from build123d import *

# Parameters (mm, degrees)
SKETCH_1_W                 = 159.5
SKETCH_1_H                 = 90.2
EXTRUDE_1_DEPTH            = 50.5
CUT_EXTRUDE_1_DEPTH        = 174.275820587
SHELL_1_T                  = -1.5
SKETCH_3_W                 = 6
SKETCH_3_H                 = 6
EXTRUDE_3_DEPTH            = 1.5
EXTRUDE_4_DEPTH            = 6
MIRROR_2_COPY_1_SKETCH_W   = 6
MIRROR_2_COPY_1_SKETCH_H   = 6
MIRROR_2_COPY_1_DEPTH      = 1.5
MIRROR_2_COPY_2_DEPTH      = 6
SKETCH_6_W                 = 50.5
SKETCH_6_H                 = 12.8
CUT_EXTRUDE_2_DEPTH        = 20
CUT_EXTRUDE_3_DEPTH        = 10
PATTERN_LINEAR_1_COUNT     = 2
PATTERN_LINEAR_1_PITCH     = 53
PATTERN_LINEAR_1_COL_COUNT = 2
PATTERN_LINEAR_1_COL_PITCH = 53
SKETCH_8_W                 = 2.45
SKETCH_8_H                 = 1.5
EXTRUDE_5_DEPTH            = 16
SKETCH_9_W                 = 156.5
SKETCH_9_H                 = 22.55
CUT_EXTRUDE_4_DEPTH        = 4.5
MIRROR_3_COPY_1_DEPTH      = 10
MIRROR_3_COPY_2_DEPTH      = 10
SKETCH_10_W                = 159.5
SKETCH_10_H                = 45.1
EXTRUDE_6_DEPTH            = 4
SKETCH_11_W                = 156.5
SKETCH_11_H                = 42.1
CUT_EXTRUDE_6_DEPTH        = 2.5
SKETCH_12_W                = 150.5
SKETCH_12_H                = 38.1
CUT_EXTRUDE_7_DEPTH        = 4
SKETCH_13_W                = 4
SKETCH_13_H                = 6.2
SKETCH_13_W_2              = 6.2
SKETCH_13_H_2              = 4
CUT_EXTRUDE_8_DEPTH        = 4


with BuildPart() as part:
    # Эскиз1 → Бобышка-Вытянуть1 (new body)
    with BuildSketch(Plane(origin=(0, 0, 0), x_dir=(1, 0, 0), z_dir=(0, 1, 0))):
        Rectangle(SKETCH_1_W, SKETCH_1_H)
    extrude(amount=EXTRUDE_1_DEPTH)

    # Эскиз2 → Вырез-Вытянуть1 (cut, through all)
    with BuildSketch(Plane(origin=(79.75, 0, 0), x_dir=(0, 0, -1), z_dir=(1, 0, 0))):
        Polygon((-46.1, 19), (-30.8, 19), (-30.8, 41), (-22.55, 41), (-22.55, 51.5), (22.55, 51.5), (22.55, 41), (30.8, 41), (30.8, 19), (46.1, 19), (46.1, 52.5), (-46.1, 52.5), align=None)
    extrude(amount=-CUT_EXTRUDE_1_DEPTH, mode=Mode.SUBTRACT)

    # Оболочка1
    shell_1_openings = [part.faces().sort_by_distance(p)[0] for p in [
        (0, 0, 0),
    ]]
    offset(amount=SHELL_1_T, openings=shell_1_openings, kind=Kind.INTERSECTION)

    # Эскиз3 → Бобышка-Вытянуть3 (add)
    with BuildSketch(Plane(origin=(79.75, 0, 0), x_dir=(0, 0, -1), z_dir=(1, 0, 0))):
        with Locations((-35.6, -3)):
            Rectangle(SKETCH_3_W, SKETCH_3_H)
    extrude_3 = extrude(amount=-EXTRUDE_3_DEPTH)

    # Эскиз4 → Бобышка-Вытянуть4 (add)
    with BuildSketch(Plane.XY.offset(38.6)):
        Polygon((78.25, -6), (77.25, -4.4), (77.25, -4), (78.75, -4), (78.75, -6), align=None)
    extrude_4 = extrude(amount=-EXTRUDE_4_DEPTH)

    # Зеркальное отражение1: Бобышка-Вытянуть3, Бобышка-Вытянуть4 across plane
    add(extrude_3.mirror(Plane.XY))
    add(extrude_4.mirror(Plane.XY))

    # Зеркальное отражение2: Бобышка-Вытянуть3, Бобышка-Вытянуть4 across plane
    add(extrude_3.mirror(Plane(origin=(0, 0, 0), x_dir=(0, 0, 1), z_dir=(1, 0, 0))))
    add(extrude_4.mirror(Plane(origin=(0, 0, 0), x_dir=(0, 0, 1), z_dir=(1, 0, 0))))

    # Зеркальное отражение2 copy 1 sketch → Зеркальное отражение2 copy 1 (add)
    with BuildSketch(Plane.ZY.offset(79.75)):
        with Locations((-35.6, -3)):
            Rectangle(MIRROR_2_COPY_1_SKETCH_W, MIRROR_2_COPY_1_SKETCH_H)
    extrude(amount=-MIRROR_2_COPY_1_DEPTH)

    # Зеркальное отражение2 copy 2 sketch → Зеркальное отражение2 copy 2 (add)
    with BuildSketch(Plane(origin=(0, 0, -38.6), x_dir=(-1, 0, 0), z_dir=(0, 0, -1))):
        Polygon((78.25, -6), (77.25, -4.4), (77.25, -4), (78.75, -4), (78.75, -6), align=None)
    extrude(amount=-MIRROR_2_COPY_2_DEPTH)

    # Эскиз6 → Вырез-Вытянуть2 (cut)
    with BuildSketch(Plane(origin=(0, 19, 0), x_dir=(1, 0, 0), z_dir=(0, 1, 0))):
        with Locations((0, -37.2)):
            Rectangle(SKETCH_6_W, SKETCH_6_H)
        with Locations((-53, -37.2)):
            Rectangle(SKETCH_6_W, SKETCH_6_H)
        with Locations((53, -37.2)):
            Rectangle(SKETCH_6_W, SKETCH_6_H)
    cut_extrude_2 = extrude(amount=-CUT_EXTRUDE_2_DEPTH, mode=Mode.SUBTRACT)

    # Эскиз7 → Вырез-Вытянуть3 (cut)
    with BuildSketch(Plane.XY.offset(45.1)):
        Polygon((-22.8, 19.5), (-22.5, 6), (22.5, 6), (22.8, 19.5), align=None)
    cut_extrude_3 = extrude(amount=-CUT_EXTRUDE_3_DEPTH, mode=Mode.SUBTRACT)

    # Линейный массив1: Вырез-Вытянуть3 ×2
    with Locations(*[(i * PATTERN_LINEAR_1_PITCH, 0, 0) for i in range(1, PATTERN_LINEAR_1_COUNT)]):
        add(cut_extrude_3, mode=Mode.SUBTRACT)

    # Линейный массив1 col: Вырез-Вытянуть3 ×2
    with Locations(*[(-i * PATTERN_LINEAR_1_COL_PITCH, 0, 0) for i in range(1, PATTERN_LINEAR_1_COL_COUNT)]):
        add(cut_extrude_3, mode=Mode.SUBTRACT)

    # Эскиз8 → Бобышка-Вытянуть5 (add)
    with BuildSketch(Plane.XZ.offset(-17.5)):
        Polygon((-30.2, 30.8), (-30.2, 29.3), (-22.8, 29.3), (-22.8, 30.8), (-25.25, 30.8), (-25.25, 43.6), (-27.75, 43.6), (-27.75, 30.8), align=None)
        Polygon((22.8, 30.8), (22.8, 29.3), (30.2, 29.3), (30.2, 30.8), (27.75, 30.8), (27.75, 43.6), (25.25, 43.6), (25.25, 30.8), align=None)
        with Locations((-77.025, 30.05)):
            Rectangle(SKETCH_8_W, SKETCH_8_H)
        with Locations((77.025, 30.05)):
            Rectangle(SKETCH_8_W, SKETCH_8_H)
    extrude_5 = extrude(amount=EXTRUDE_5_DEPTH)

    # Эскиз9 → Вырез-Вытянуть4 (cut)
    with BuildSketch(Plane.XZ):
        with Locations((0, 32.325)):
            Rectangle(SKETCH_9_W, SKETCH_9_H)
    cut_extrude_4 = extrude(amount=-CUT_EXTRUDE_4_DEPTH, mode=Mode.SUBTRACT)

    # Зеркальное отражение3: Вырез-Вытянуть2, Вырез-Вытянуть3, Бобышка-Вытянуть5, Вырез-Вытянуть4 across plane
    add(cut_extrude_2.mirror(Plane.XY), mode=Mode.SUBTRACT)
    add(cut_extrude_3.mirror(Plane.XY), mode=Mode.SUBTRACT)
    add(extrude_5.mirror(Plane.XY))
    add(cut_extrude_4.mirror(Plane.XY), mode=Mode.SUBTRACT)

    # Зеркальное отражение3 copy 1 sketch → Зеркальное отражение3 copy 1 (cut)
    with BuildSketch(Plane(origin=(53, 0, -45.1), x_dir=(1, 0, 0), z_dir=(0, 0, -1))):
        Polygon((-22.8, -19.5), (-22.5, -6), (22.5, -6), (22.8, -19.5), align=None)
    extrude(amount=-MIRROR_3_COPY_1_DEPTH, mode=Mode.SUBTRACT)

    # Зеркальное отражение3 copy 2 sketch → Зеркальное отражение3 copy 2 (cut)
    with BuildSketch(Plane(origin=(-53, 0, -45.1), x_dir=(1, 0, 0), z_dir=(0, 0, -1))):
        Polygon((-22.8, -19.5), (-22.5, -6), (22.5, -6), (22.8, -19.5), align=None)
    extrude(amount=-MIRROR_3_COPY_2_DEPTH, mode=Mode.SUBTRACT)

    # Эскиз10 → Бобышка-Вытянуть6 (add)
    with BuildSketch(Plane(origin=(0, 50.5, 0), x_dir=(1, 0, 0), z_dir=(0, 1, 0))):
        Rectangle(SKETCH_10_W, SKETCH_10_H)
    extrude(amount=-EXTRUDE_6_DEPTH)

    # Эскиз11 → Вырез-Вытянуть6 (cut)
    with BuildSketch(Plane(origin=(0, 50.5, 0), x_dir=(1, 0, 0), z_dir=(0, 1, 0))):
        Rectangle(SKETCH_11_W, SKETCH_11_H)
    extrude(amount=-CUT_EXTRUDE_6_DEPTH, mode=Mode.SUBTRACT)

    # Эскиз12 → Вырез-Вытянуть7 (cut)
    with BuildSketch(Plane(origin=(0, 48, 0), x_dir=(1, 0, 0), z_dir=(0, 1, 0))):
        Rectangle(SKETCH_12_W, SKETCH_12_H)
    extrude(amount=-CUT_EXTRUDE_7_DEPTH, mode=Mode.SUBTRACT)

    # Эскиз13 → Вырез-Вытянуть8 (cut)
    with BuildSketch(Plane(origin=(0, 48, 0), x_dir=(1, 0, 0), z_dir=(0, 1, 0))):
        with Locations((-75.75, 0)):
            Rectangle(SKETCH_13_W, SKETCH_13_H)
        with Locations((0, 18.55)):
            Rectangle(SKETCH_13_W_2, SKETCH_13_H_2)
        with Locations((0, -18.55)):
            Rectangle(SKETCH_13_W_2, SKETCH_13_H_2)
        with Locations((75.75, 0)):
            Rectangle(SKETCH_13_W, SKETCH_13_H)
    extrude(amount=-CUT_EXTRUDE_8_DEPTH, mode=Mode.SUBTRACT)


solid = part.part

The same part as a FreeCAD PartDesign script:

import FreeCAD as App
import Part
import Sketcher


def faces_at(feature, points):
    """Names of the faces that lie closest to the given points."""
    faces = feature.Shape.Faces
    near = lambda p: min(range(len(faces)), key=lambda i: faces[i].distToShape(Part.Vertex(*p))[0])
    return sorted({f"Face{near(p) + 1}" for p in points})

doc = App.newDocument("Part")
params = doc.addObject("Spreadsheet::Sheet", "Params")
for row, (alias, value) in enumerate([
    ("sketch1_width", "159.5 mm"),
    ("sketch1_height", "90.2 mm"),
    ("pad1_length", "50.5 mm"),
    ("sketch2_width", "22 mm"),
    ("sketch2_width2", "10.5 mm"),
    ("sketch2_width3", "33.5 mm"),
    ("sketch2_height", "15.3 mm"),
    ("sketch2_height2", "45.1 mm"),
    ("thickness_wall", "1.5 mm"),
    ("sketch3_width", "6 mm"),
    ("pad2_length", "1.5 mm"),
    ("sketch4_height", "2 mm"),
    ("sketch4_width", "0.5 mm"),
    ("sketch4_width2", "1.5 mm"),
    ("sketch4_height2", "0.4 mm"),
    ("pad3_length", "6 mm"),
    ("sketch5_width", "6 mm"),
    ("pad4_length", "1.5 mm"),
    ("sketch6_height", "2 mm"),
    ("sketch6_width", "0.5 mm"),
    ("sketch6_width2", "1.5 mm"),
    ("sketch6_height2", "0.4 mm"),
    ("pad5_length", "6 mm"),
    ("sketch7_width", "50.5 mm"),
    ("sketch7_height", "12.8 mm"),
    ("pocket2_length", "20 mm"),
    ("sketch8_width", "45 mm"),
    ("sketch8_width2", "45.6 mm"),
    ("pocket3_length", "10 mm"),
    ("linearpattern_pitch", "53 mm"),
    ("linearpattern2_pitch", "53 mm"),
    ("sketch9_width", "7.4 mm"),
    ("sketch9_width2", "2.5 mm"),
    ("sketch9_height", "1.5 mm"),
    ("sketch9_height2", "12.8 mm"),
    ("pad6_length", "16 mm"),
    ("sketch10_width", "156.5 mm"),
    ("sketch10_height", "22.55 mm"),
    ("pocket4_length", "4.5 mm"),
    ("sketch11_width", "45 mm"),
    ("sketch11_width2", "45.6 mm"),
    ("pocket5_length", "10 mm"),
    ("sketch12_width", "45 mm"),
    ("sketch12_width2", "45.6 mm"),
    ("pocket6_length", "10 mm"),
    ("sketch13_width", "159.5 mm"),
    ("sketch13_height", "45.1 mm"),
    ("pad7_length", "4 mm"),
    ("sketch14_width", "156.5 mm"),
    ("sketch14_height", "42.1 mm"),
    ("pocket7_length", "2.5 mm"),
    ("sketch15_width", "150.5 mm"),
    ("sketch15_height", "38.1 mm"),
    ("pocket8_length", "4 mm"),
    ("sketch16_width", "4 mm"),
    ("sketch16_width2", "6.2 mm"),
    ("pocket9_length", "4 mm"),
], start=1):
    params.set(f"A{row}", alias)
    params.set(f"B{row}", "=" + value)
    params.setAlias(f"B{row}", alias)

body = doc.addObject("PartDesign::Body", "Body")

# Sketch on XZ plane
sketch1 = body.newObject("Sketcher::SketchObject", "Sketch")
sketch1.AttachmentSupport = (doc.getObject("XZ_Plane"), [""])
sketch1.MapMode = "FlatFace"
sketch1.addGeometry([
    Part.LineSegment(App.Vector(-80, -45, 0), App.Vector(-80, 45, 0)),
    Part.LineSegment(App.Vector(-80, 45, 0), App.Vector(80, 45, 0)),
    Part.LineSegment(App.Vector(80, 45, 0), App.Vector(80, -45, 0)),
    Part.LineSegment(App.Vector(80, -45, 0), App.Vector(-80, -45, 0)),
], False)
sketch1.addConstraint([
    Sketcher.Constraint("Coincident", 0, 2, 1, 1),
    Sketcher.Constraint("Coincident", 1, 2, 2, 1),
    Sketcher.Constraint("Coincident", 2, 2, 3, 1),
    Sketcher.Constraint("Coincident", 3, 2, 0, 1),
    Sketcher.Constraint("Vertical", 0),
    Sketcher.Constraint("Horizontal", 1),
    Sketcher.Constraint("Vertical", 2),
    Sketcher.Constraint("Horizontal", 3),
    Sketcher.Constraint("Symmetric", 0, 2, 2, 2, -1, 1),
    Sketcher.Constraint("DistanceX", 1, 1, 1, 2, 159.5),
    Sketcher.Constraint("DistanceY", 0, 1, 0, 2, 90.2),
])
sketch1.setExpression("Constraints[9]", "Params.sketch1_width")
sketch1.setExpression("Constraints[10]", "Params.sketch1_height")
pad1 = body.newObject("PartDesign::Pad", "Pad")
pad1.Profile = sketch1
pad1.setExpression("Length", "Params.pad1_length")
pad1.Reversed = True

# Sketch on YZ plane
sketch2 = body.newObject("Sketcher::SketchObject", "Sketch001")
sketch2.AttachmentSupport = (doc.getObject("YZ_Plane"), [""])
sketch2.MapMode = "FlatFace"
sketch2.AttachmentOffset = App.Placement(App.Vector(0, 0, 79.75), App.Rotation())
sketch2.addGeometry([
    Part.LineSegment(App.Vector(19, 46, 0), App.Vector(19, 31, 0)),  # 0
    Part.LineSegment(App.Vector(19, 31, 0), App.Vector(41, 31, 0)),  # 1
    Part.LineSegment(App.Vector(41, 31, 0), App.Vector(41, 23, 0)),  # 2
    Part.LineSegment(App.Vector(41, 23, 0), App.Vector(52, 23, 0)),  # 3
    Part.LineSegment(App.Vector(52, 23, 0), App.Vector(52, -23, 0)),  # 4
    Part.LineSegment(App.Vector(52, -23, 0), App.Vector(41, -23, 0)),  # 5
    Part.LineSegment(App.Vector(41, -23, 0), App.Vector(41, -31, 0)),  # 6
    Part.LineSegment(App.Vector(41, -31, 0), App.Vector(19, -31, 0)),  # 7
    Part.LineSegment(App.Vector(19, -31, 0), App.Vector(19, -46, 0)),  # 8
    Part.LineSegment(App.Vector(19, -46, 0), App.Vector(52, -46, 0)),  # 9
    Part.LineSegment(App.Vector(52, -46, 0), App.Vector(52, 46, 0)),  # 10
    Part.LineSegment(App.Vector(52, 46, 0), App.Vector(19, 46, 0)),  # 11
], False)
sketch2.addConstraint([
    Sketcher.Constraint("Coincident", 0, 2, 1, 1),
    Sketcher.Constraint("Coincident", 1, 2, 2, 1),
    Sketcher.Constraint("Coincident", 2, 2, 3, 1),
    Sketcher.Constraint("Coincident", 3, 2, 4, 1),
    Sketcher.Constraint("Coincident", 4, 2, 5, 1),
    Sketcher.Constraint("Coincident", 5, 2, 6, 1),
    Sketcher.Constraint("Coincident", 6, 2, 7, 1),
    Sketcher.Constraint("Coincident", 7, 2, 8, 1),
    Sketcher.Constraint("Coincident", 8, 2, 9, 1),
    Sketcher.Constraint("Coincident", 9, 2, 10, 1),
    Sketcher.Constraint("Coincident", 10, 2, 11, 1),
    Sketcher.Constraint("Coincident", 11, 2, 0, 1),
    Sketcher.Constraint("Vertical", 0),
    Sketcher.Constraint("Horizontal", 1),
    Sketcher.Constraint("Vertical", 2),
    Sketcher.Constraint("Horizontal", 3),
    Sketcher.Constraint("Vertical", 4),
    Sketcher.Constraint("Horizontal", 5),
    Sketcher.Constraint("Vertical", 6),
    Sketcher.Constraint("Horizontal", 7),
    Sketcher.Constraint("Vertical", 8),
    Sketcher.Constraint("Horizontal", 9),
    Sketcher.Constraint("Vertical", 10),
    Sketcher.Constraint("Horizontal", 11),
    Sketcher.Constraint("Symmetric", 2, 2, 5, 2, -1),
    Sketcher.Constraint("Symmetric", 0, 2, 7, 2, -1),
    Sketcher.Constraint("Equal", 0, 8),
    Sketcher.Constraint("DistanceX", 1, 1, 1, 2, 22.0),
    Sketcher.Constraint("DistanceX", 3, 1, 3, 2, 10.5),
    Sketcher.Constraint("DistanceX", 9, 1, 9, 2, 33.5),
    Sketcher.Constraint("DistanceY", 0, 2, 0, 1, 15.3),
    Sketcher.Constraint("DistanceY", 4, 2, 4, 1, 45.1),
    Sketcher.Constraint("DistanceY", 10, 1, 10, 2, 92.2),
    Sketcher.Constraint("DistanceX", -1, 1, 0, 2, 19.0),
])
sketch2.setExpression("Constraints[27]", "Params.sketch2_width")
sketch2.setExpression("Constraints[28]", "Params.sketch2_width2")
sketch2.setExpression("Constraints[29]", "Params.sketch2_width3")
sketch2.setExpression("Constraints[30]", "Params.sketch2_height")
sketch2.setExpression("Constraints[31]", "Params.sketch2_height2")
pocket1 = body.newObject("PartDesign::Pocket", "Pocket")
pocket1.Profile = sketch2
pocket1.Type = "ThroughAll"
doc.recompute()

thickness = body.newObject("PartDesign::Thickness", "Thickness")
thickness.Base = (pocket1, faces_at(pocket1, [(0, 0, 0)]))
thickness.setExpression("Value", "Params.thickness_wall")
thickness.Reversed = True
thickness.Join = "Intersection"

# Sketch on YZ plane
sketch3 = body.newObject("Sketcher::SketchObject", "Sketch002")
sketch3.AttachmentSupport = (doc.getObject("YZ_Plane"), [""])
sketch3.MapMode = "FlatFace"
sketch3.AttachmentOffset = App.Placement(App.Vector(0, 0, 79.75), App.Rotation())
sketch3.addGeometry([
    Part.LineSegment(App.Vector(0, 39, 0), App.Vector(-6, 39, 0)),
    Part.LineSegment(App.Vector(-6, 39, 0), App.Vector(-6, 33, 0)),
    Part.LineSegment(App.Vector(-6, 33, 0), App.Vector(0, 33, 0)),
    Part.LineSegment(App.Vector(0, 33, 0), App.Vector(0, 39, 0)),
], False)
sketch3.addConstraint([
    Sketcher.Constraint("Coincident", 0, 2, 1, 1),
    Sketcher.Constraint("Coincident", 1, 2, 2, 1),
    Sketcher.Constraint("Coincident", 2, 2, 3, 1),
    Sketcher.Constraint("Coincident", 3, 2, 0, 1),
    Sketcher.Constraint("Horizontal", 0),
    Sketcher.Constraint("Vertical", 1),
    Sketcher.Constraint("Horizontal", 2),
    Sketcher.Constraint("Vertical", 3),
    Sketcher.Constraint("PointOnObject", 2, 2, -2),
    Sketcher.Constraint("Equal", 2, 1),
    Sketcher.Constraint("DistanceX", 0, 2, 0, 1, 6.0),
    Sketcher.Constraint("DistanceY", -1, 1, 0, 2, 38.6),
])
sketch3.setExpression("Constraints[10]", "Params.sketch3_width")
pad2 = body.newObject("PartDesign::Pad", "Pad001")
pad2.Profile = sketch3
pad2.setExpression("Length", "Params.pad2_length")
pad2.Reversed = True

# Sketch on XY plane
sketch4 = body.newObject("Sketcher::SketchObject", "Sketch003")
sketch4.AttachmentSupport = (doc.getObject("XY_Plane"), [""])
sketch4.MapMode = "FlatFace"
sketch4.AttachmentOffset = App.Placement(App.Vector(0, 0, 38.6), App.Rotation())
sketch4.addGeometry([
    Part.LineSegment(App.Vector(77.25, -4.4, 0), App.Vector(78.25, -6, 0)),  # 0
    Part.LineSegment(App.Vector(78.25, -6, 0), App.Vector(78.75, -6, 0)),  # 1
    Part.LineSegment(App.Vector(78.75, -6, 0), App.Vector(78.75, -4, 0)),  # 2
    Part.LineSegment(App.Vector(78.75, -4, 0), App.Vector(77.25, -4, 0)),  # 3
    Part.LineSegment(App.Vector(77.25, -4, 0), App.Vector(77.25, -4.4, 0)),  # 4
], False)
sketch4.addConstraint([
    Sketcher.Constraint("Coincident", 0, 2, 1, 1),
    Sketcher.Constraint("Coincident", 1, 2, 2, 1),
    Sketcher.Constraint("Coincident", 2, 2, 3, 1),
    Sketcher.Constraint("Coincident", 3, 2, 4, 1),
    Sketcher.Constraint("Coincident", 4, 2, 0, 1),
    Sketcher.Constraint("Horizontal", 1),
    Sketcher.Constraint("Vertical", 2),
    Sketcher.Constraint("Horizontal", 3),
    Sketcher.Constraint("Vertical", 4),
    Sketcher.Constraint("DistanceY", 2, 1, 2, 2, 2.0),
    Sketcher.Constraint("DistanceX", 1, 1, 1, 2, 0.5),
    Sketcher.Constraint("DistanceX", 3, 2, 3, 1, 1.5),
    Sketcher.Constraint("DistanceY", 4, 2, 4, 1, 0.4),
    Sketcher.Constraint("DistanceY", 0, 2, -1, 1, 6.0),
    Sketcher.Constraint("DistanceX", -1, 1, 0, 2, 78.25),
])
sketch4.setExpression("Constraints[9]", "Params.sketch4_height")
sketch4.setExpression("Constraints[10]", "Params.sketch4_width")
sketch4.setExpression("Constraints[11]", "Params.sketch4_width2")
sketch4.setExpression("Constraints[12]", "Params.sketch4_height2")
pad3 = body.newObject("PartDesign::Pad", "Pad002")
pad3.Profile = sketch4
pad3.setExpression("Length", "Params.pad3_length")
pad3.Reversed = True
doc.recompute()

mirrored = body.newObject("PartDesign::Mirrored", "Mirrored")
mirrored.Originals = [pad2, pad3]
mirrored.MirrorPlane = (doc.getObject("XY_Plane"), [""])
body.Tip = mirrored
doc.recompute()

mirrored2 = body.newObject("PartDesign::Mirrored", "Mirrored001")
mirrored2.Originals = [pad2, pad3]
mirrored2.MirrorPlane = (doc.getObject("YZ_Plane"), [""])
body.Tip = mirrored2

# Sketch on YZ plane
sketch5 = body.newObject("Sketcher::SketchObject", "Sketch004")
sketch5.AttachmentSupport = (doc.getObject("YZ_Plane"), [""])
sketch5.MapMode = "FlatFace"
sketch5.AttachmentOffset = App.Placement(App.Vector(0, 0, -79.75), App.Rotation())
sketch5.addGeometry([
    Part.LineSegment(App.Vector(0, -39, 0), App.Vector(-6, -39, 0)),
    Part.LineSegment(App.Vector(-6, -39, 0), App.Vector(-6, -33, 0)),
    Part.LineSegment(App.Vector(-6, -33, 0), App.Vector(0, -33, 0)),
    Part.LineSegment(App.Vector(0, -33, 0), App.Vector(0, -39, 0)),
], False)
sketch5.addConstraint([
    Sketcher.Constraint("Coincident", 0, 2, 1, 1),
    Sketcher.Constraint("Coincident", 1, 2, 2, 1),
    Sketcher.Constraint("Coincident", 2, 2, 3, 1),
    Sketcher.Constraint("Coincident", 3, 2, 0, 1),
    Sketcher.Constraint("Horizontal", 0),
    Sketcher.Constraint("Vertical", 1),
    Sketcher.Constraint("Horizontal", 2),
    Sketcher.Constraint("Vertical", 3),
    Sketcher.Constraint("PointOnObject", 2, 2, -2),
    Sketcher.Constraint("Equal", 2, 1),
    Sketcher.Constraint("DistanceX", 0, 2, 0, 1, 6.0),
    Sketcher.Constraint("DistanceY", 0, 2, -1, 1, 38.6),
])
sketch5.setExpression("Constraints[10]", "Params.sketch5_width")
pad4 = body.newObject("PartDesign::Pad", "Pad003")
pad4.Profile = sketch5
pad4.setExpression("Length", "Params.pad4_length")

# Sketch on XY plane
sketch6 = body.newObject("Sketcher::SketchObject", "Sketch005")
sketch6.AttachmentSupport = (doc.getObject("XY_Plane"), [""])
sketch6.MapMode = "FlatFace"
sketch6.AttachmentOffset = App.Placement(App.Vector(0, 0, -38.6), App.Rotation())
sketch6.addGeometry([
    Part.LineSegment(App.Vector(-77.25, -4.4, 0), App.Vector(-78.25, -6, 0)),  # 0
    Part.LineSegment(App.Vector(-78.25, -6, 0), App.Vector(-78.75, -6, 0)),  # 1
    Part.LineSegment(App.Vector(-78.75, -6, 0), App.Vector(-78.75, -4, 0)),  # 2
    Part.LineSegment(App.Vector(-78.75, -4, 0), App.Vector(-77.25, -4, 0)),  # 3
    Part.LineSegment(App.Vector(-77.25, -4, 0), App.Vector(-77.25, -4.4, 0)),  # 4
], False)
sketch6.addConstraint([
    Sketcher.Constraint("Coincident", 0, 2, 1, 1),
    Sketcher.Constraint("Coincident", 1, 2, 2, 1),
    Sketcher.Constraint("Coincident", 2, 2, 3, 1),
    Sketcher.Constraint("Coincident", 3, 2, 4, 1),
    Sketcher.Constraint("Coincident", 4, 2, 0, 1),
    Sketcher.Constraint("Horizontal", 1),
    Sketcher.Constraint("Vertical", 2),
    Sketcher.Constraint("Horizontal", 3),
    Sketcher.Constraint("Vertical", 4),
    Sketcher.Constraint("DistanceY", 2, 1, 2, 2, 2.0),
    Sketcher.Constraint("DistanceX", 1, 2, 1, 1, 0.5),
    Sketcher.Constraint("DistanceX", 3, 1, 3, 2, 1.5),
    Sketcher.Constraint("DistanceY", 4, 2, 4, 1, 0.4),
    Sketcher.Constraint("DistanceY", 0, 2, -1, 1, 6.0),
    Sketcher.Constraint("DistanceX", 0, 2, -1, 1, 78.25),
])
sketch6.setExpression("Constraints[9]", "Params.sketch6_height")
sketch6.setExpression("Constraints[10]", "Params.sketch6_width")
sketch6.setExpression("Constraints[11]", "Params.sketch6_width2")
sketch6.setExpression("Constraints[12]", "Params.sketch6_height2")
pad5 = body.newObject("PartDesign::Pad", "Pad004")
pad5.Profile = sketch6
pad5.setExpression("Length", "Params.pad5_length")

# Sketch on XZ plane
sketch7 = body.newObject("Sketcher::SketchObject", "Sketch006")
sketch7.AttachmentSupport = (doc.getObject("XZ_Plane"), [""])
sketch7.MapMode = "FlatFace"
sketch7.AttachmentOffset = App.Placement(App.Vector(0, 0, -19), App.Rotation())
sketch7.addGeometry([
    Part.LineSegment(App.Vector(-25, 31, 0), App.Vector(-25, 44, 0)),  # 0
    Part.LineSegment(App.Vector(-25, 44, 0), App.Vector(25, 44, 0)),  # 1
    Part.LineSegment(App.Vector(25, 44, 0), App.Vector(25, 31, 0)),  # 2
    Part.LineSegment(App.Vector(25, 31, 0), App.Vector(-25, 31, 0)),  # 3
    Part.LineSegment(App.Vector(-78, 31, 0), App.Vector(-78, 44, 0)),  # 4
    Part.LineSegment(App.Vector(-78, 44, 0), App.Vector(-28, 44, 0)),  # 5
    Part.LineSegment(App.Vector(-28, 44, 0), App.Vector(-28, 31, 0)),  # 6
    Part.LineSegment(App.Vector(-28, 31, 0), App.Vector(-78, 31, 0)),  # 7
    Part.LineSegment(App.Vector(28, 31, 0), App.Vector(28, 44, 0)),  # 8
    Part.LineSegment(App.Vector(28, 44, 0), App.Vector(78, 44, 0)),  # 9
    Part.LineSegment(App.Vector(78, 44, 0), App.Vector(78, 31, 0)),  # 10
    Part.LineSegment(App.Vector(78, 31, 0), App.Vector(28, 31, 0)),  # 11
], False)
sketch7.addConstraint([
    Sketcher.Constraint("Coincident", 0, 2, 1, 1),
    Sketcher.Constraint("Coincident", 1, 2, 2, 1),
    Sketcher.Constraint("Coincident", 2, 2, 3, 1),
    Sketcher.Constraint("Coincident", 3, 2, 0, 1),
    Sketcher.Constraint("Coincident", 4, 2, 5, 1),
    Sketcher.Constraint("Coincident", 5, 2, 6, 1),
    Sketcher.Constraint("Coincident", 6, 2, 7, 1),
    Sketcher.Constraint("Coincident", 7, 2, 4, 1),
    Sketcher.Constraint("Coincident", 8, 2, 9, 1),
    Sketcher.Constraint("Coincident", 9, 2, 10, 1),
    Sketcher.Constraint("Coincident", 10, 2, 11, 1),
    Sketcher.Constraint("Coincident", 11, 2, 8, 1),
    Sketcher.Constraint("Vertical", 0),
    Sketcher.Constraint("Horizontal", 1),
    Sketcher.Constraint("Vertical", 2),
    Sketcher.Constraint("Horizontal", 3),
    Sketcher.Constraint("Vertical", 4),
    Sketcher.Constraint("Horizontal", 5),
    Sketcher.Constraint("Vertical", 6),
    Sketcher.Constraint("Horizontal", 7),
    Sketcher.Constraint("Vertical", 8),
    Sketcher.Constraint("Horizontal", 9),
    Sketcher.Constraint("Vertical", 10),
    Sketcher.Constraint("Horizontal", 11),
    Sketcher.Constraint("Symmetric", 5, 2, 8, 2, -2),
    Sketcher.Constraint("Symmetric", 7, 2, 10, 2, -2),
    Sketcher.Constraint("Horizontal", 1, 2, 4, 2),
    Sketcher.Constraint("Horizontal", 3, 2, 6, 2),
    Sketcher.Constraint("Equal", 3, 5),
    Sketcher.Constraint("DistanceX", 1, 1, 1, 2, 50.5),
    Sketcher.Constraint("DistanceY", 0, 1, 0, 2, 12.8),
    Sketcher.Constraint("DistanceX", 4, 2, 0, 2, 53.0),
    Sketcher.Constraint("DistanceX", 0, 2, 8, 2, 53.0),
    Sketcher.Constraint("DistanceY", -1, 1, 0, 2, 43.6),
])
sketch7.setExpression("Constraints[29]", "Params.sketch7_width")
sketch7.setExpression("Constraints[30]", "Params.sketch7_height")
pocket2 = body.newObject("PartDesign::Pocket", "Pocket001")
pocket2.Profile = sketch7
pocket2.setExpression("Length", "Params.pocket2_length")
pocket2.Reversed = True

# Sketch on XY plane
sketch8 = body.newObject("Sketcher::SketchObject", "Sketch007")
sketch8.AttachmentSupport = (doc.getObject("XY_Plane"), [""])
sketch8.MapMode = "FlatFace"
sketch8.AttachmentOffset = App.Placement(App.Vector(0, 0, 45.1), App.Rotation())
sketch8.addGeometry([
    Part.LineSegment(App.Vector(-23, 20, 0), App.Vector(-22, 6, 0)),
    Part.LineSegment(App.Vector(-22, 6, 0), App.Vector(22, 6, 0)),
    Part.LineSegment(App.Vector(22, 6, 0), App.Vector(23, 20, 0)),
    Part.LineSegment(App.Vector(23, 20, 0), App.Vector(-23, 20, 0)),
], False)
sketch8.addConstraint([
    Sketcher.Constraint("Coincident", 0, 2, 1, 1),
    Sketcher.Constraint("Coincident", 1, 2, 2, 1),
    Sketcher.Constraint("Coincident", 2, 2, 3, 1),
    Sketcher.Constraint("Coincident", 3, 2, 0, 1),
    Sketcher.Constraint("Horizontal", 1),
    Sketcher.Constraint("Horizontal", 3),
    Sketcher.Constraint("Equal", 0, 2),
    Sketcher.Constraint("DistanceX", 1, 1, 1, 2, 45.0),
    Sketcher.Constraint("DistanceX", 3, 2, 3, 1, 45.6),
    Sketcher.Constraint("DistanceY", -1, 1, 0, 2, 6.0),
    Sketcher.Constraint("DistanceX", 0, 2, -1, 1, 22.5),
    Sketcher.Constraint("DistanceY", -1, 1, 2, 2, 19.5),
])
sketch8.setExpression("Constraints[7]", "Params.sketch8_width")
sketch8.setExpression("Constraints[8]", "Params.sketch8_width2")
pocket3 = body.newObject("PartDesign::Pocket", "Pocket002")
pocket3.Profile = sketch8
pocket3.setExpression("Length", "Params.pocket3_length")
doc.recompute()

linearpattern = body.newObject("PartDesign::LinearPattern", "LinearPattern")
linearpattern.Originals = [pocket3]
linearpattern.Direction = (doc.getObject("X_Axis"), [""])
linearpattern.Mode = "offset"
linearpattern.setExpression("Offset", "Params.linearpattern_pitch")
linearpattern.Occurrences = 2
body.Tip = linearpattern
doc.recompute()

linearpattern2 = body.newObject("PartDesign::LinearPattern", "LinearPattern001")
linearpattern2.Originals = [pocket3]
linearpattern2.Direction = (doc.getObject("X_Axis"), [""])
linearpattern2.Mode = "offset"
linearpattern2.setExpression("Offset", "Params.linearpattern2_pitch")
linearpattern2.Occurrences = 2
linearpattern2.Reversed = True
body.Tip = linearpattern2

# Sketch on XZ plane
sketch9 = body.newObject("Sketcher::SketchObject", "Sketch008")
sketch9.AttachmentSupport = (doc.getObject("XZ_Plane"), [""])
sketch9.MapMode = "FlatFace"
sketch9.AttachmentOffset = App.Placement(App.Vector(0, 0, -17.5), App.Rotation())
sketch9.addGeometry([
    Part.LineSegment(App.Vector(-30.2, 30.8, 0), App.Vector(-30.2, 29.3, 0)),  # 0
    Part.LineSegment(App.Vector(-30.2, 29.3, 0), App.Vector(-22.8, 29.3, 0)),  # 1
    Part.LineSegment(App.Vector(-22.8, 29.3, 0), App.Vector(-22.8, 30.8, 0)),  # 2
    Part.LineSegment(App.Vector(-22.8, 30.8, 0), App.Vector(-25.2, 30.8, 0)),  # 3
    Part.LineSegment(App.Vector(-25.2, 30.8, 0), App.Vector(-25.2, 43.6, 0)),  # 4
    Part.LineSegment(App.Vector(-25.2, 43.6, 0), App.Vector(-27.8, 43.6, 0)),  # 5
    Part.LineSegment(App.Vector(-27.8, 43.6, 0), App.Vector(-27.8, 30.8, 0)),  # 6
    Part.LineSegment(App.Vector(-27.8, 30.8, 0), App.Vector(-30.2, 30.8, 0)),  # 7
    Part.LineSegment(App.Vector(22.8, 30.8, 0), App.Vector(22.8, 29.3, 0)),  # 8
    Part.LineSegment(App.Vector(22.8, 29.3, 0), App.Vector(30.2, 29.3, 0)),  # 9
    Part.LineSegment(App.Vector(30.2, 29.3, 0), App.Vector(30.2, 30.8, 0)),  # 10
    Part.LineSegment(App.Vector(30.2, 30.8, 0), App.Vector(27.8, 30.8, 0)),  # 11
    Part.LineSegment(App.Vector(27.8, 30.8, 0), App.Vector(27.8, 43.6, 0)),  # 12
    Part.LineSegment(App.Vector(27.8, 43.6, 0), App.Vector(25.2, 43.6, 0)),  # 13
    Part.LineSegment(App.Vector(25.2, 43.6, 0), App.Vector(25.2, 30.8, 0)),  # 14
    Part.LineSegment(App.Vector(25.2, 30.8, 0), App.Vector(22.8, 30.8, 0)),  # 15
    Part.LineSegment(App.Vector(-78.2, 30.8, 0), App.Vector(-78.2, 29.3, 0)),  # 16
    Part.LineSegment(App.Vector(-78.2, 29.3, 0), App.Vector(-75.8, 29.3, 0)),  # 17
    Part.LineSegment(App.Vector(-75.8, 29.3, 0), App.Vector(-75.8, 30.8, 0)),  # 18
    Part.LineSegment(App.Vector(-75.8, 30.8, 0), App.Vector(-78.2, 30.8, 0)),  # 19
    Part.LineSegment(App.Vector(75.8, 30.8, 0), App.Vector(75.8, 29.3, 0)),  # 20
    Part.LineSegment(App.Vector(75.8, 29.3, 0), App.Vector(78.2, 29.3, 0)),  # 21
    Part.LineSegment(App.Vector(78.2, 29.3, 0), App.Vector(78.2, 30.8, 0)),  # 22
    Part.LineSegment(App.Vector(78.2, 30.8, 0), App.Vector(75.8, 30.8, 0)),  # 23
], False)
sketch9.addConstraint([
    Sketcher.Constraint("Coincident", 0, 2, 1, 1),
    Sketcher.Constraint("Coincident", 1, 2, 2, 1),
    Sketcher.Constraint("Coincident", 2, 2, 3, 1),
    Sketcher.Constraint("Coincident", 3, 2, 4, 1),
    Sketcher.Constraint("Coincident", 4, 2, 5, 1),
    Sketcher.Constraint("Coincident", 5, 2, 6, 1),
    Sketcher.Constraint("Coincident", 6, 2, 7, 1),
    Sketcher.Constraint("Coincident", 7, 2, 0, 1),
    Sketcher.Constraint("Coincident", 8, 2, 9, 1),
    Sketcher.Constraint("Coincident", 9, 2, 10, 1),
    Sketcher.Constraint("Coincident", 10, 2, 11, 1),
    Sketcher.Constraint("Coincident", 11, 2, 12, 1),
    Sketcher.Constraint("Coincident", 12, 2, 13, 1),
    Sketcher.Constraint("Coincident", 13, 2, 14, 1),
    Sketcher.Constraint("Coincident", 14, 2, 15, 1),
    Sketcher.Constraint("Coincident", 15, 2, 8, 1),
    Sketcher.Constraint("Coincident", 16, 2, 17, 1),
    Sketcher.Constraint("Coincident", 17, 2, 18, 1),
    Sketcher.Constraint("Coincident", 18, 2, 19, 1),
    Sketcher.Constraint("Coincident", 19, 2, 16, 1),
    Sketcher.Constraint("Coincident", 20, 2, 21, 1),
    Sketcher.Constraint("Coincident", 21, 2, 22, 1),
    Sketcher.Constraint("Coincident", 22, 2, 23, 1),
    Sketcher.Constraint("Coincident", 23, 2, 20, 1),
    Sketcher.Constraint("Vertical", 0),
    Sketcher.Constraint("Horizontal", 1),
    Sketcher.Constraint("Vertical", 2),
    Sketcher.Constraint("Horizontal", 3),
    Sketcher.Constraint("Vertical", 4),
    Sketcher.Constraint("Horizontal", 5),
    Sketcher.Constraint("Vertical", 6),
    Sketcher.Constraint("Horizontal", 7),
    Sketcher.Constraint("Vertical", 8),
    Sketcher.Constraint("Horizontal", 9),
    Sketcher.Constraint("Vertical", 10),
    Sketcher.Constraint("Horizontal", 11),
    Sketcher.Constraint("Vertical", 12),
    Sketcher.Constraint("Horizontal", 13),
    Sketcher.Constraint("Vertical", 14),
    Sketcher.Constraint("Horizontal", 15),
    Sketcher.Constraint("Vertical", 16),
    Sketcher.Constraint("Horizontal", 17),
    Sketcher.Constraint("Vertical", 18),
    Sketcher.Constraint("Horizontal", 19),
    Sketcher.Constraint("Vertical", 20),
    Sketcher.Constraint("Horizontal", 21),
    Sketcher.Constraint("Vertical", 22),
    Sketcher.Constraint("Horizontal", 23),
    Sketcher.Constraint("Symmetric", 1, 2, 8, 2, -2),
    Sketcher.Constraint("Symmetric", 7, 2, 10, 2, -2),
    Sketcher.Constraint("Symmetric", 5, 2, 12, 2, -2),
    Sketcher.Constraint("Symmetric", 3, 2, 14, 2, -2),
    Sketcher.Constraint("Symmetric", 17, 2, 20, 2, -2),
    Sketcher.Constraint("Symmetric", 19, 2, 22, 2, -2),
    Sketcher.Constraint("Horizontal", 3, 2, 6, 2),
    Sketcher.Constraint("Horizontal", 9, 2, 16, 2),
    Sketcher.Constraint("Horizontal", 15, 2, 18, 2),
    Sketcher.Constraint("Equal", 3, 7),
    Sketcher.Constraint("Equal", 15, 17),
    Sketcher.Constraint("DistanceX", 1, 1, 1, 2, 7.4),
    Sketcher.Constraint("DistanceX", 5, 2, 5, 1, 2.5),
    Sketcher.Constraint("DistanceY", 0, 2, 0, 1, 1.5),
    Sketcher.Constraint("DistanceY", 4, 1, 4, 2, 12.8),
    Sketcher.Constraint("DistanceX", 1, 2, 9, 2, 53.0),
    Sketcher.Constraint("DistanceX", 16, 2, 3, 2, 53.0),
    Sketcher.Constraint("DistanceY", -1, 1, 0, 2, 29.3),
])
sketch9.setExpression("Constraints[59]", "Params.sketch9_width")
sketch9.setExpression("Constraints[60]", "Params.sketch9_width2")
sketch9.setExpression("Constraints[61]", "Params.sketch9_height")
sketch9.setExpression("Constraints[62]", "Params.sketch9_height2")
pad6 = body.newObject("PartDesign::Pad", "Pad005")
pad6.Profile = sketch9
pad6.setExpression("Length", "Params.pad6_length")

# Sketch on XZ plane
sketch10 = body.newObject("Sketcher::SketchObject", "Sketch009")
sketch10.AttachmentSupport = (doc.getObject("XZ_Plane"), [""])
sketch10.MapMode = "FlatFace"
sketch10.addGeometry([
    Part.LineSegment(App.Vector(-78, 44, 0), App.Vector(-78, 21, 0)),
    Part.LineSegment(App.Vector(-78, 21, 0), App.Vector(78, 21, 0)),
    Part.LineSegment(App.Vector(78, 21, 0), App.Vector(78, 44, 0)),
    Part.LineSegment(App.Vector(78, 44, 0), App.Vector(-78, 44, 0)),
], False)
sketch10.addConstraint([
    Sketcher.Constraint("Coincident", 0, 2, 1, 1),
    Sketcher.Constraint("Coincident", 1, 2, 2, 1),
    Sketcher.Constraint("Coincident", 2, 2, 3, 1),
    Sketcher.Constraint("Coincident", 3, 2, 0, 1),
    Sketcher.Constraint("Vertical", 0),
    Sketcher.Constraint("Horizontal", 1),
    Sketcher.Constraint("Vertical", 2),
    Sketcher.Constraint("Horizontal", 3),
    Sketcher.Constraint("DistanceX", 1, 1, 1, 2, 156.5),
    Sketcher.Constraint("DistanceY", 0, 2, 0, 1, 22.55),
    Sketcher.Constraint("DistanceY", -1, 1, 2, 2, 43.6),
    Sketcher.Constraint("DistanceX", 0, 2, -1, 1, 78.25),
])
sketch10.setExpression("Constraints[8]", "Params.sketch10_width")
sketch10.setExpression("Constraints[9]", "Params.sketch10_height")
pocket4 = body.newObject("PartDesign::Pocket", "Pocket003")
pocket4.Profile = sketch10
pocket4.setExpression("Length", "Params.pocket4_length")
doc.recompute()

mirrored3 = body.newObject("PartDesign::Mirrored", "Mirrored002")
mirrored3.Originals = [pocket2, pocket3, pad6, pocket4]
mirrored3.MirrorPlane = (doc.getObject("XY_Plane"), [""])
body.Tip = mirrored3

# Sketch on XY plane
sketch11 = body.newObject("Sketcher::SketchObject", "Sketch010")
sketch11.AttachmentSupport = (doc.getObject("XY_Plane"), [""])
sketch11.MapMode = "FlatFace"
sketch11.AttachmentOffset = App.Placement(App.Vector(0, 0, -45.1), App.Rotation())
sketch11.addGeometry([
    Part.LineSegment(App.Vector(30.5, 6, 0), App.Vector(30.2, 19.5, 0)),
    Part.LineSegment(App.Vector(30.2, 19.5, 0), App.Vector(75.8, 19.5, 0)),
    Part.LineSegment(App.Vector(75.8, 19.5, 0), App.Vector(75.5, 6, 0)),
    Part.LineSegment(App.Vector(75.5, 6, 0), App.Vector(30.5, 6, 0)),
], False)
sketch11.addConstraint([
    Sketcher.Constraint("Coincident", 0, 2, 1, 1),
    Sketcher.Constraint("Coincident", 1, 2, 2, 1),
    Sketcher.Constraint("Coincident", 2, 2, 3, 1),
    Sketcher.Constraint("Coincident", 3, 2, 0, 1),
    Sketcher.Constraint("Horizontal", 1),
    Sketcher.Constraint("Horizontal", 3),
    Sketcher.Constraint("Equal", 0, 2),
    Sketcher.Constraint("DistanceX", 3, 2, 3, 1, 45.0),
    Sketcher.Constraint("DistanceX", 1, 1, 1, 2, 45.6),
    Sketcher.Constraint("DistanceY", -1, 1, 2, 2, 6.0),
    Sketcher.Constraint("DistanceX", -1, 1, 0, 2, 30.2),
    Sketcher.Constraint("DistanceY", -1, 1, 0, 2, 19.5),
])
sketch11.setExpression("Constraints[7]", "Params.sketch11_width")
sketch11.setExpression("Constraints[8]", "Params.sketch11_width2")
pocket5 = body.newObject("PartDesign::Pocket", "Pocket004")
pocket5.Profile = sketch11
pocket5.setExpression("Length", "Params.pocket5_length")
pocket5.Reversed = True

# Sketch on XY plane
sketch12 = body.newObject("Sketcher::SketchObject", "Sketch011")
sketch12.AttachmentSupport = (doc.getObject("XY_Plane"), [""])
sketch12.MapMode = "FlatFace"
sketch12.AttachmentOffset = App.Placement(App.Vector(0, 0, -45.1), App.Rotation())
sketch12.addGeometry([
    Part.LineSegment(App.Vector(-75.5, 6, 0), App.Vector(-75.8, 19.5, 0)),
    Part.LineSegment(App.Vector(-75.8, 19.5, 0), App.Vector(-30.2, 19.5, 0)),
    Part.LineSegment(App.Vector(-30.2, 19.5, 0), App.Vector(-30.5, 6, 0)),
    Part.LineSegment(App.Vector(-30.5, 6, 0), App.Vector(-75.5, 6, 0)),
], False)
sketch12.addConstraint([
    Sketcher.Constraint("Coincident", 0, 2, 1, 1),
    Sketcher.Constraint("Coincident", 1, 2, 2, 1),
    Sketcher.Constraint("Coincident", 2, 2, 3, 1),
    Sketcher.Constraint("Coincident", 3, 2, 0, 1),
    Sketcher.Constraint("Horizontal", 1),
    Sketcher.Constraint("Horizontal", 3),
    Sketcher.Constraint("Equal", 0, 2),
    Sketcher.Constraint("DistanceX", 3, 2, 3, 1, 45.0),
    Sketcher.Constraint("DistanceX", 1, 1, 1, 2, 45.6),
    Sketcher.Constraint("DistanceY", -1, 1, 2, 2, 6.0),
    Sketcher.Constraint("DistanceX", 0, 2, -1, 1, 75.8),
    Sketcher.Constraint("DistanceY", -1, 1, 0, 2, 19.5),
])
sketch12.setExpression("Constraints[7]", "Params.sketch12_width")
sketch12.setExpression("Constraints[8]", "Params.sketch12_width2")
pocket6 = body.newObject("PartDesign::Pocket", "Pocket005")
pocket6.Profile = sketch12
pocket6.setExpression("Length", "Params.pocket6_length")
pocket6.Reversed = True

# Sketch on XZ plane
sketch13 = body.newObject("Sketcher::SketchObject", "Sketch012")
sketch13.AttachmentSupport = (doc.getObject("XZ_Plane"), [""])
sketch13.MapMode = "FlatFace"
sketch13.AttachmentOffset = App.Placement(App.Vector(0, 0, -50.5), App.Rotation())
sketch13.addGeometry([
    Part.LineSegment(App.Vector(-80, -23, 0), App.Vector(-80, 23, 0)),
    Part.LineSegment(App.Vector(-80, 23, 0), App.Vector(80, 23, 0)),
    Part.LineSegment(App.Vector(80, 23, 0), App.Vector(80, -23, 0)),
    Part.LineSegment(App.Vector(80, -23, 0), App.Vector(-80, -23, 0)),
], False)
sketch13.addConstraint([
    Sketcher.Constraint("Coincident", 0, 2, 1, 1),
    Sketcher.Constraint("Coincident", 1, 2, 2, 1),
    Sketcher.Constraint("Coincident", 2, 2, 3, 1),
    Sketcher.Constraint("Coincident", 3, 2, 0, 1),
    Sketcher.Constraint("Vertical", 0),
    Sketcher.Constraint("Horizontal", 1),
    Sketcher.Constraint("Vertical", 2),
    Sketcher.Constraint("Horizontal", 3),
    Sketcher.Constraint("Symmetric", 0, 2, 2, 2, -1, 1),
    Sketcher.Constraint("DistanceX", 1, 1, 1, 2, 159.5),
    Sketcher.Constraint("DistanceY", 0, 1, 0, 2, 45.1),
])
sketch13.setExpression("Constraints[9]", "Params.sketch13_width")
sketch13.setExpression("Constraints[10]", "Params.sketch13_height")
pad7 = body.newObject("PartDesign::Pad", "Pad006")
pad7.Profile = sketch13
pad7.setExpression("Length", "Params.pad7_length")

# Sketch on XZ plane
sketch14 = body.newObject("Sketcher::SketchObject", "Sketch013")
sketch14.AttachmentSupport = (doc.getObject("XZ_Plane"), [""])
sketch14.MapMode = "FlatFace"
sketch14.AttachmentOffset = App.Placement(App.Vector(0, 0, -50.5), App.Rotation())
sketch14.addGeometry([
    Part.LineSegment(App.Vector(-78, -21, 0), App.Vector(-78, 21, 0)),
    Part.LineSegment(App.Vector(-78, 21, 0), App.Vector(78, 21, 0)),
    Part.LineSegment(App.Vector(78, 21, 0), App.Vector(78, -21, 0)),
    Part.LineSegment(App.Vector(78, -21, 0), App.Vector(-78, -21, 0)),
], False)
sketch14.addConstraint([
    Sketcher.Constraint("Coincident", 0, 2, 1, 1),
    Sketcher.Constraint("Coincident", 1, 2, 2, 1),
    Sketcher.Constraint("Coincident", 2, 2, 3, 1),
    Sketcher.Constraint("Coincident", 3, 2, 0, 1),
    Sketcher.Constraint("Vertical", 0),
    Sketcher.Constraint("Horizontal", 1),
    Sketcher.Constraint("Vertical", 2),
    Sketcher.Constraint("Horizontal", 3),
    Sketcher.Constraint("Symmetric", 0, 2, 2, 2, -1, 1),
    Sketcher.Constraint("DistanceX", 1, 1, 1, 2, 156.5),
    Sketcher.Constraint("DistanceY", 0, 1, 0, 2, 42.1),
])
sketch14.setExpression("Constraints[9]", "Params.sketch14_width")
sketch14.setExpression("Constraints[10]", "Params.sketch14_height")
pocket7 = body.newObject("PartDesign::Pocket", "Pocket006")
pocket7.Profile = sketch14
pocket7.setExpression("Length", "Params.pocket7_length")
pocket7.Reversed = True

# Sketch on XZ plane
sketch15 = body.newObject("Sketcher::SketchObject", "Sketch014")
sketch15.AttachmentSupport = (doc.getObject("XZ_Plane"), [""])
sketch15.MapMode = "FlatFace"
sketch15.AttachmentOffset = App.Placement(App.Vector(0, 0, -48), App.Rotation())
sketch15.addGeometry([
    Part.LineSegment(App.Vector(-75, -19, 0), App.Vector(-75, 19, 0)),
    Part.LineSegment(App.Vector(-75, 19, 0), App.Vector(75, 19, 0)),
    Part.LineSegment(App.Vector(75, 19, 0), App.Vector(75, -19, 0)),
    Part.LineSegment(App.Vector(75, -19, 0), App.Vector(-75, -19, 0)),
], False)
sketch15.addConstraint([
    Sketcher.Constraint("Coincident", 0, 2, 1, 1),
    Sketcher.Constraint("Coincident", 1, 2, 2, 1),
    Sketcher.Constraint("Coincident", 2, 2, 3, 1),
    Sketcher.Constraint("Coincident", 3, 2, 0, 1),
    Sketcher.Constraint("Vertical", 0),
    Sketcher.Constraint("Horizontal", 1),
    Sketcher.Constraint("Vertical", 2),
    Sketcher.Constraint("Horizontal", 3),
    Sketcher.Constraint("Symmetric", 0, 2, 2, 2, -1, 1),
    Sketcher.Constraint("DistanceX", 1, 1, 1, 2, 150.5),
    Sketcher.Constraint("DistanceY", 0, 1, 0, 2, 38.1),
])
sketch15.setExpression("Constraints[9]", "Params.sketch15_width")
sketch15.setExpression("Constraints[10]", "Params.sketch15_height")
pocket8 = body.newObject("PartDesign::Pocket", "Pocket007")
pocket8.Profile = sketch15
pocket8.setExpression("Length", "Params.pocket8_length")
pocket8.Reversed = True

# Sketch on XZ plane
sketch16 = body.newObject("Sketcher::SketchObject", "Sketch015")
sketch16.AttachmentSupport = (doc.getObject("XZ_Plane"), [""])
sketch16.MapMode = "FlatFace"
sketch16.AttachmentOffset = App.Placement(App.Vector(0, 0, -48), App.Rotation())
sketch16.addGeometry([
    Part.LineSegment(App.Vector(-77.8, -3.1, 0), App.Vector(-77.8, 3.1, 0)),  # 0
    Part.LineSegment(App.Vector(-77.8, 3.1, 0), App.Vector(-73.8, 3.1, 0)),  # 1
    Part.LineSegment(App.Vector(-73.8, 3.1, 0), App.Vector(-73.8, -3.1, 0)),  # 2
    Part.LineSegment(App.Vector(-73.8, -3.1, 0), App.Vector(-77.8, -3.1, 0)),  # 3
    Part.LineSegment(App.Vector(-3.1, -20.6, 0), App.Vector(-3.1, -16.6, 0)),  # 4
    Part.LineSegment(App.Vector(-3.1, -16.6, 0), App.Vector(3.1, -16.6, 0)),  # 5
    Part.LineSegment(App.Vector(3.1, -16.6, 0), App.Vector(3.1, -20.6, 0)),  # 6
    Part.LineSegment(App.Vector(3.1, -20.6, 0), App.Vector(-3.1, -20.6, 0)),  # 7
    Part.LineSegment(App.Vector(-3.1, 16.6, 0), App.Vector(-3.1, 20.6, 0)),  # 8
    Part.LineSegment(App.Vector(-3.1, 20.6, 0), App.Vector(3.1, 20.6, 0)),  # 9
    Part.LineSegment(App.Vector(3.1, 20.6, 0), App.Vector(3.1, 16.6, 0)),  # 10
    Part.LineSegment(App.Vector(3.1, 16.6, 0), App.Vector(-3.1, 16.6, 0)),  # 11
    Part.LineSegment(App.Vector(73.8, -3.1, 0), App.Vector(73.8, 3.1, 0)),  # 12
    Part.LineSegment(App.Vector(73.8, 3.1, 0), App.Vector(77.8, 3.1, 0)),  # 13
    Part.LineSegment(App.Vector(77.8, 3.1, 0), App.Vector(77.8, -3.1, 0)),  # 14
    Part.LineSegment(App.Vector(77.8, -3.1, 0), App.Vector(73.8, -3.1, 0)),  # 15
], False)
sketch16.addConstraint([
    Sketcher.Constraint("Coincident", 0, 2, 1, 1),
    Sketcher.Constraint("Coincident", 1, 2, 2, 1),
    Sketcher.Constraint("Coincident", 2, 2, 3, 1),
    Sketcher.Constraint("Coincident", 3, 2, 0, 1),
    Sketcher.Constraint("Coincident", 4, 2, 5, 1),
    Sketcher.Constraint("Coincident", 5, 2, 6, 1),
    Sketcher.Constraint("Coincident", 6, 2, 7, 1),
    Sketcher.Constraint("Coincident", 7, 2, 4, 1),
    Sketcher.Constraint("Coincident", 8, 2, 9, 1),
    Sketcher.Constraint("Coincident", 9, 2, 10, 1),
    Sketcher.Constraint("Coincident", 10, 2, 11, 1),
    Sketcher.Constraint("Coincident", 11, 2, 8, 1),
    Sketcher.Constraint("Coincident", 12, 2, 13, 1),
    Sketcher.Constraint("Coincident", 13, 2, 14, 1),
    Sketcher.Constraint("Coincident", 14, 2, 15, 1),
    Sketcher.Constraint("Coincident", 15, 2, 12, 1),
    Sketcher.Constraint("Vertical", 0),
    Sketcher.Constraint("Horizontal", 1),
    Sketcher.Constraint("Vertical", 2),
    Sketcher.Constraint("Horizontal", 3),
    Sketcher.Constraint("Vertical", 4),
    Sketcher.Constraint("Horizontal", 5),
    Sketcher.Constraint("Vertical", 6),
    Sketcher.Constraint("Horizontal", 7),
    Sketcher.Constraint("Vertical", 8),
    Sketcher.Constraint("Horizontal", 9),
    Sketcher.Constraint("Vertical", 10),
    Sketcher.Constraint("Horizontal", 11),
    Sketcher.Constraint("Vertical", 12),
    Sketcher.Constraint("Horizontal", 13),
    Sketcher.Constraint("Vertical", 14),
    Sketcher.Constraint("Horizontal", 15),
    Sketcher.Constraint("Symmetric", 6, 2, 8, 2, -1, 1),
    Sketcher.Constraint("Symmetric", 4, 2, 10, 2, -1, 1),
    Sketcher.Constraint("Symmetric", 2, 2, 12, 2, -1, 1),
    Sketcher.Constraint("Symmetric", 0, 2, 14, 2, -1, 1),
    Sketcher.Constraint("Horizontal", 1, 2, 12, 2),
    Sketcher.Constraint("Vertical", 7, 2, 8, 2),
    Sketcher.Constraint("Equal", 11, 0),
    Sketcher.Constraint("Equal", 15, 4),
    Sketcher.Constraint("DistanceX", 1, 1, 1, 2, 4.0),
    Sketcher.Constraint("DistanceX", 5, 1, 5, 2, 6.2),
    Sketcher.Constraint("DistanceY", 4, 2, 8, 2, 37.1),
    Sketcher.Constraint("DistanceX", 0, 2, -1, 1, 77.75),
])
sketch16.setExpression("Constraints[40]", "Params.sketch16_width")
sketch16.setExpression("Constraints[41]", "Params.sketch16_width2")
pocket9 = body.newObject("PartDesign::Pocket", "Pocket008")
pocket9.Profile = sketch16
pocket9.setExpression("Length", "Params.pocket9_length")
pocket9.Reversed = True

doc.recompute()
